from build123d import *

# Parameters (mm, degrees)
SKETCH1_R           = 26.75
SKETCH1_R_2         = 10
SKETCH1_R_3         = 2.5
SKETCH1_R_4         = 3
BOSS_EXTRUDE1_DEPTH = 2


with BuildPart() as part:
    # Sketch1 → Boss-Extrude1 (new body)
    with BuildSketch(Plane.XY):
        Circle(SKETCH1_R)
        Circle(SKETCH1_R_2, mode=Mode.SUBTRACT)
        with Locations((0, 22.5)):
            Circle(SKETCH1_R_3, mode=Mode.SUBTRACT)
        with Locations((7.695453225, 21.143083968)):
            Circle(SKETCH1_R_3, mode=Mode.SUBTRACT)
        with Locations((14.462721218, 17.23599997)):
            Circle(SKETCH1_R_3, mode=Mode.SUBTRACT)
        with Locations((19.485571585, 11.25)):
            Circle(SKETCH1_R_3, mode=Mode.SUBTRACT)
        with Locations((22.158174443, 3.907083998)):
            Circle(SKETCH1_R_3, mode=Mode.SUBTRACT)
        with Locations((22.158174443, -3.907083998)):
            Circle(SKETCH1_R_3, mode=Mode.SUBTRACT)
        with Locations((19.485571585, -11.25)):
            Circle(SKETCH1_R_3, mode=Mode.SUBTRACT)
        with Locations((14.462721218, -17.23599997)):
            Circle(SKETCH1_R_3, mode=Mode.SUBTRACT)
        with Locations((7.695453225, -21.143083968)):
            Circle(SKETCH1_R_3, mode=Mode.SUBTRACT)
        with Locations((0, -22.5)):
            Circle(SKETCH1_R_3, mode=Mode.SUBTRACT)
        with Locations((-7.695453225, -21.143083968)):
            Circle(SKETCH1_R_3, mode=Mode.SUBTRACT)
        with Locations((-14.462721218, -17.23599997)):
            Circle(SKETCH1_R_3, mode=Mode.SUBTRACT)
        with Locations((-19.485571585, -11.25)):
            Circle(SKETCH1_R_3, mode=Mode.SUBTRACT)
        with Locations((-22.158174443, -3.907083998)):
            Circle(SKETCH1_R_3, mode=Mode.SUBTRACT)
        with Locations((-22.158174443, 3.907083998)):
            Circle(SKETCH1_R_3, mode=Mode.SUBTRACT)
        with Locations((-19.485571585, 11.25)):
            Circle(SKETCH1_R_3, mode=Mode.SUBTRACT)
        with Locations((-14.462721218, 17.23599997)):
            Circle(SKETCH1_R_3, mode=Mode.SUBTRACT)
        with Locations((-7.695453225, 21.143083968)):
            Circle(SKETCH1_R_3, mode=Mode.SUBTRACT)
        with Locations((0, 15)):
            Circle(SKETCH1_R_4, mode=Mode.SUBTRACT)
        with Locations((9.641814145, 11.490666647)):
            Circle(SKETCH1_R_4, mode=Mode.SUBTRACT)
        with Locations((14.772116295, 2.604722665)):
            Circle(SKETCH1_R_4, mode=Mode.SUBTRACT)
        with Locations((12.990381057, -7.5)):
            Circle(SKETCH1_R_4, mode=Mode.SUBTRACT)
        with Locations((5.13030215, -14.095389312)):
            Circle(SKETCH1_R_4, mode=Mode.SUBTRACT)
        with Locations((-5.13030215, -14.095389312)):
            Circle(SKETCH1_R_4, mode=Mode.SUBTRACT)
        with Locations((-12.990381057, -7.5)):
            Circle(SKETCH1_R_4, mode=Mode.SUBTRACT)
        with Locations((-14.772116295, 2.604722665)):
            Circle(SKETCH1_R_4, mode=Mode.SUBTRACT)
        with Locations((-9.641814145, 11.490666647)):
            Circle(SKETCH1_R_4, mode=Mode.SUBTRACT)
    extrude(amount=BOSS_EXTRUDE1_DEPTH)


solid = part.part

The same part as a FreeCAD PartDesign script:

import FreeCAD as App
import Part
import Sketcher

V = App.Vector

doc = App.newDocument("Part")
params = doc.addObject("Spreadsheet::Sheet", "Params")
for row, (alias, value) in enumerate([
    ("sketch1_diameter", "5 mm"),
    ("sketch1_diameter2", "6 mm"),
    ("sketch1_diameter3", "20 mm"),
    ("sketch1_diameter4", "53.5 mm"),
    ("pad1_length", "2 mm"),
], start=1):
    params.set(f"A{row}", alias)
    params.set(f"B{row}", "=" + value)
    params.setAlias(f"B{row}", alias)

body = doc.addObject("PartDesign::Body", "Body")

# Sketch on XY plane
sketch1 = body.newObject("Sketcher::SketchObject", "Sketch")
sketch1.AttachmentSupport = (doc.getObject("XY_Plane"), [""])
sketch1.MapMode = "FlatFace"
sketch1.addGeometry(Part.Circle(V(0, 0, 0), V(0, 0, 1), 26.75), False)
sketch1.addGeometry(Part.Circle(V(-14.462721, -17.236, 0), V(0, 0, 1), 2.5), False)
sketch1.addGeometry(Part.Circle(V(-7.695453, -21.143084, 0), V(0, 0, 1), 2.5), False)
sketch1.addGeometry(Part.Circle(V(0, -22.5, 0), V(0, 0, 1), 2.5), False)
sketch1.addGeometry(Part.Circle(V(-5.130302, -14.095389, 0), V(0, 0, 1), 3), False)
sketch1.addGeometry(Part.Circle(V(-19.485572, -11.25, 0), V(0, 0, 1), 2.5), False)
sketch1.addGeometry(Part.Circle(V(-12.990381, -7.5, 0), V(0, 0, 1), 3), False)
sketch1.addGeometry(Part.Circle(V(-22.158174, -3.907084, 0), V(0, 0, 1), 2.5), False)
sketch1.addGeometry(Part.Circle(V(7.695453, -21.143084, 0), V(0, 0, 1), 2.5), False)
sketch1.addGeometry(Part.Circle(V(5.130302, -14.095389, 0), V(0, 0, 1), 3), False)
sketch1.addGeometry(Part.Circle(V(14.462721, -17.236, 0), V(0, 0, 1), 2.5), False)
sketch1.addGeometry(Part.Circle(V(12.990381, -7.5, 0), V(0, 0, 1), 3), False)
sketch1.addGeometry(Part.Circle(V(19.485572, -11.25, 0), V(0, 0, 1), 2.5), False)
sketch1.addGeometry(Part.Circle(V(22.158174, -3.907084, 0), V(0, 0, 1), 2.5), False)
sketch1.addGeometry(Part.Circle(V(-22.158174, 3.907084, 0), V(0, 0, 1), 2.5), False)
sketch1.addGeometry(Part.Circle(V(-14.772116, 2.604723, 0), V(0, 0, 1), 3), False)
sketch1.addGeometry(Part.Circle(V(-19.485572, 11.25, 0), V(0, 0, 1), 2.5), False)
sketch1.addGeometry(Part.Circle(V(0, 0, 0), V(0, 0, 1), 10), False)
sketch1.addGeometry(Part.Circle(V(-9.641814, 11.490667, 0), V(0, 0, 1), 3), False)
sketch1.addGeometry(Part.Circle(V(-14.462721, 17.236, 0), V(0, 0, 1), 2.5), False)
sketch1.addGeometry(Part.Circle(V(0, 15, 0), V(0, 0, 1), 3), False)
sketch1.addGeometry(Part.Circle(V(-7.695453, 21.143084, 0), V(0, 0, 1), 2.5), False)
sketch1.addGeometry(Part.Circle(V(0, 22.5, 0), V(0, 0, 1), 2.5), False)
sketch1.addGeometry(Part.Circle(V(9.641814, 11.490667, 0), V(0, 0, 1), 3), False)
sketch1.addGeometry(Part.Circle(V(14.772116, 2.604723, 0), V(0, 0, 1), 3), False)
sketch1.addGeometry(Part.Circle(V(22.158174, 3.907084, 0), V(0, 0, 1), 2.5), False)
sketch1.addGeometry(Part.Circle(V(19.485572, 11.25, 0), V(0, 0, 1), 2.5), False)
sketch1.addGeometry(Part.Circle(V(7.695453, 21.143084, 0), V(0, 0, 1), 2.5), False)
sketch1.addGeometry(Part.Circle(V(14.462721, 17.236, 0), V(0, 0, 1), 2.5), False)
sketch1.addConstraint(Sketcher.Constraint("Coincident", 0, 3, -1, 1))
sketch1.addConstraint(Sketcher.Constraint("Coincident", 17, 3, -1, 1))
sketch1.addConstraint(Sketcher.Constraint("Equal", 1, 2))
sketch1.addConstraint(Sketcher.Constraint("Equal", 2, 3))
sketch1.addConstraint(Sketcher.Constraint("Equal", 3, 5))
sketch1.addConstraint(Sketcher.Constraint("Equal", 4, 6))
sketch1.addConstraint(Sketcher.Constraint("Equal", 5, 7))
sketch1.addConstraint(Sketcher.Constraint("Equal", 7, 8))
sketch1.addConstraint(Sketcher.Constraint("Equal", 6, 9))
sketch1.addConstraint(Sketcher.Constraint("Equal", 8, 10))
sketch1.addConstraint(Sketcher.Constraint("Equal", 9, 11))
sketch1.addConstraint(Sketcher.Constraint("Equal", 10, 12))
sketch1.addConstraint(Sketcher.Constraint("Equal", 12, 13))
sketch1.addConstraint(Sketcher.Constraint("Equal", 13, 14))
sketch1.addConstraint(Sketcher.Constraint("Equal", 11, 15))
sketch1.addConstraint(Sketcher.Constraint("Equal", 14, 16))
sketch1.addConstraint(Sketcher.Constraint("Equal", 15, 18))
sketch1.addConstraint(Sketcher.Constraint("Equal", 16, 19))
sketch1.addConstraint(Sketcher.Constraint("Equal", 18, 20))
sketch1.addConstraint(Sketcher.Constraint("Equal", 19, 21))
sketch1.addConstraint(Sketcher.Constraint("Equal", 21, 22))
sketch1.addConstraint(Sketcher.Constraint("Equal", 20, 23))
sketch1.addConstraint(Sketcher.Constraint("Equal", 23, 24))
sketch1.addConstraint(Sketcher.Constraint("Equal", 22, 25))
sketch1.addConstraint(Sketcher.Constraint("Equal", 25, 26))
sketch1.addConstraint(Sketcher.Constraint("Equal", 26, 27))
sketch1.addConstraint(Sketcher.Constraint("Equal", 27, 28))
sketch1.addConstraint(Sketcher.Constraint("Symmetric", 13, 3, 14, 3, -1, 1))
sketch1.addConstraint(Sketcher.Constraint("Symmetric", 12, 3, 16, 3, -1, 1))
sketch1.addConstraint(Sketcher.Constraint("Symmetric", 10, 3, 19, 3, -1, 1))
sketch1.addConstraint(Sketcher.Constraint("Symmetric", 8, 3, 21, 3, -1, 1))
sketch1.addConstraint(Sketcher.Constraint("Symmetric", 3, 3, 22, 3, -1, 1))
sketch1.addConstraint(Sketcher.Constraint("Symmetric", 7, 3, 25, 3, -1, 1))
sketch1.addConstraint(Sketcher.Constraint("Symmetric", 5, 3, 26, 3, -1, 1))
sketch1.addConstraint(Sketcher.Constraint("Symmetric", 2, 3, 27, 3, -1, 1))
sketch1.addConstraint(Sketcher.Constraint("Symmetric", 1, 3, 28, 3, -1, 1))
sketch1.addConstraint(Sketcher.Constraint("Symmetric", 2, 3, 8, 3, -2))
sketch1.addConstraint(Sketcher.Constraint("Symmetric", 4, 3, 9, 3, -2))
sketch1.addConstraint(Sketcher.Constraint("Symmetric", 1, 3, 10, 3, -2))
sketch1.addConstraint(Sketcher.Constraint("Symmetric", 6, 3, 11, 3, -2))
sketch1.addConstraint(Sketcher.Constraint("Symmetric", 5, 3, 12, 3, -2))
sketch1.addConstraint(Sketcher.Constraint("Symmetric", 7, 3, 13, 3, -2))
sketch1.addConstraint(Sketcher.Constraint("Symmetric", 18, 3, 23, 3, -2))
sketch1.addConstraint(Sketcher.Constraint("Symmetric", 15, 3, 24, 3, -2))
sketch1.addConstraint(Sketcher.Constraint("PointOnObject", 3, 3, -2))
sketch1.addConstraint(Sketcher.Constraint("PointOnObject", 20, 3, -2))
sketch1.addConstraint(Sketcher.Constraint("Diameter", 1, 5.0))
sketch1.addConstraint(Sketcher.Constraint("Diameter", 4, 6.0))
sketch1.addConstraint(Sketcher.Constraint("Diameter", 17, 20.0))
sketch1.addConstraint(Sketcher.Constraint("Diameter", 0, 53.5))
sketch1.addConstraint(Sketcher.Constraint("DistanceY", -1, 1, 20, 3, 15.0))
sketch1.addConstraint(Sketcher.Constraint("DistanceY", 3, 3, -1, 1, 22.5))
sketch1.addConstraint(Sketcher.Constraint("DistanceY", 6, 3, -1, 1, 7.5))
sketch1.addConstraint(Sketcher.Constraint("DistanceY", 5, 3, -1, 1, 11.25))
sketch1.addConstraint(Sketcher.Constraint("DistanceY", 1, 3, -1, 1, 17.236))
sketch1.addConstraint(Sketcher.Constraint("DistanceY", 2, 3, 7, 3, 17.236))
sketch1.addConstraint(Sketcher.Constraint("DistanceX", 1, 3, -1, 1, 14.462721))
sketch1.addConstraint(Sketcher.Constraint("DistanceY", 4, 3, -1, 1, 14.095389))
sketch1.addConstraint(Sketcher.Constraint("DistanceX", 5, 3, -1, 1, 19.485572))
sketch1.addConstraint(Sketcher.Constraint("DistanceX", 6, 3, -1, 1, 12.990381))
sketch1.addConstraint(Sketcher.Constraint("DistanceX", 2, 3, 4, 3, 2.565151))
sketch1.addConstraint(Sketcher.Constraint("DistanceX", 1, 3, 4, 3, 9.332419))
sketch1.addConstraint(Sketcher.Constraint("DistanceX", 7, 3, 2, 3, 14.462721))
sketch1.addConstraint(Sketcher.Constraint("DistanceX", 14, 3, 15, 3, 7.386058))
sketch1.addConstraint(Sketcher.Constraint("DistanceY", 15, 3, 14, 3, 1.302361))
sketch1.addConstraint(Sketcher.Constraint("DistanceX", 14, 3, 18, 3, 12.51636))
sketch1.addConstraint(Sketcher.Constraint("DistanceY", 2, 3, -1, 1, 21.143084))
sketch1.addConstraint(Sketcher.Constraint("DistanceY", -1, 1, 18, 3, 11.490667))
sketch1.setExpression("Constraints[46]", "Params.sketch1_diameter")
sketch1.setExpression("Constraints[47]", "Params.sketch1_diameter2")
sketch1.setExpression("Constraints[48]", "Params.sketch1_diameter3")
sketch1.setExpression("Constraints[49]", "Params.sketch1_diameter4")
pad1 = body.newObject("PartDesign::Pad", "Pad")
pad1.Profile = sketch1
pad1.setExpression("Length", "Params.pad1_length")

doc.recompute()
